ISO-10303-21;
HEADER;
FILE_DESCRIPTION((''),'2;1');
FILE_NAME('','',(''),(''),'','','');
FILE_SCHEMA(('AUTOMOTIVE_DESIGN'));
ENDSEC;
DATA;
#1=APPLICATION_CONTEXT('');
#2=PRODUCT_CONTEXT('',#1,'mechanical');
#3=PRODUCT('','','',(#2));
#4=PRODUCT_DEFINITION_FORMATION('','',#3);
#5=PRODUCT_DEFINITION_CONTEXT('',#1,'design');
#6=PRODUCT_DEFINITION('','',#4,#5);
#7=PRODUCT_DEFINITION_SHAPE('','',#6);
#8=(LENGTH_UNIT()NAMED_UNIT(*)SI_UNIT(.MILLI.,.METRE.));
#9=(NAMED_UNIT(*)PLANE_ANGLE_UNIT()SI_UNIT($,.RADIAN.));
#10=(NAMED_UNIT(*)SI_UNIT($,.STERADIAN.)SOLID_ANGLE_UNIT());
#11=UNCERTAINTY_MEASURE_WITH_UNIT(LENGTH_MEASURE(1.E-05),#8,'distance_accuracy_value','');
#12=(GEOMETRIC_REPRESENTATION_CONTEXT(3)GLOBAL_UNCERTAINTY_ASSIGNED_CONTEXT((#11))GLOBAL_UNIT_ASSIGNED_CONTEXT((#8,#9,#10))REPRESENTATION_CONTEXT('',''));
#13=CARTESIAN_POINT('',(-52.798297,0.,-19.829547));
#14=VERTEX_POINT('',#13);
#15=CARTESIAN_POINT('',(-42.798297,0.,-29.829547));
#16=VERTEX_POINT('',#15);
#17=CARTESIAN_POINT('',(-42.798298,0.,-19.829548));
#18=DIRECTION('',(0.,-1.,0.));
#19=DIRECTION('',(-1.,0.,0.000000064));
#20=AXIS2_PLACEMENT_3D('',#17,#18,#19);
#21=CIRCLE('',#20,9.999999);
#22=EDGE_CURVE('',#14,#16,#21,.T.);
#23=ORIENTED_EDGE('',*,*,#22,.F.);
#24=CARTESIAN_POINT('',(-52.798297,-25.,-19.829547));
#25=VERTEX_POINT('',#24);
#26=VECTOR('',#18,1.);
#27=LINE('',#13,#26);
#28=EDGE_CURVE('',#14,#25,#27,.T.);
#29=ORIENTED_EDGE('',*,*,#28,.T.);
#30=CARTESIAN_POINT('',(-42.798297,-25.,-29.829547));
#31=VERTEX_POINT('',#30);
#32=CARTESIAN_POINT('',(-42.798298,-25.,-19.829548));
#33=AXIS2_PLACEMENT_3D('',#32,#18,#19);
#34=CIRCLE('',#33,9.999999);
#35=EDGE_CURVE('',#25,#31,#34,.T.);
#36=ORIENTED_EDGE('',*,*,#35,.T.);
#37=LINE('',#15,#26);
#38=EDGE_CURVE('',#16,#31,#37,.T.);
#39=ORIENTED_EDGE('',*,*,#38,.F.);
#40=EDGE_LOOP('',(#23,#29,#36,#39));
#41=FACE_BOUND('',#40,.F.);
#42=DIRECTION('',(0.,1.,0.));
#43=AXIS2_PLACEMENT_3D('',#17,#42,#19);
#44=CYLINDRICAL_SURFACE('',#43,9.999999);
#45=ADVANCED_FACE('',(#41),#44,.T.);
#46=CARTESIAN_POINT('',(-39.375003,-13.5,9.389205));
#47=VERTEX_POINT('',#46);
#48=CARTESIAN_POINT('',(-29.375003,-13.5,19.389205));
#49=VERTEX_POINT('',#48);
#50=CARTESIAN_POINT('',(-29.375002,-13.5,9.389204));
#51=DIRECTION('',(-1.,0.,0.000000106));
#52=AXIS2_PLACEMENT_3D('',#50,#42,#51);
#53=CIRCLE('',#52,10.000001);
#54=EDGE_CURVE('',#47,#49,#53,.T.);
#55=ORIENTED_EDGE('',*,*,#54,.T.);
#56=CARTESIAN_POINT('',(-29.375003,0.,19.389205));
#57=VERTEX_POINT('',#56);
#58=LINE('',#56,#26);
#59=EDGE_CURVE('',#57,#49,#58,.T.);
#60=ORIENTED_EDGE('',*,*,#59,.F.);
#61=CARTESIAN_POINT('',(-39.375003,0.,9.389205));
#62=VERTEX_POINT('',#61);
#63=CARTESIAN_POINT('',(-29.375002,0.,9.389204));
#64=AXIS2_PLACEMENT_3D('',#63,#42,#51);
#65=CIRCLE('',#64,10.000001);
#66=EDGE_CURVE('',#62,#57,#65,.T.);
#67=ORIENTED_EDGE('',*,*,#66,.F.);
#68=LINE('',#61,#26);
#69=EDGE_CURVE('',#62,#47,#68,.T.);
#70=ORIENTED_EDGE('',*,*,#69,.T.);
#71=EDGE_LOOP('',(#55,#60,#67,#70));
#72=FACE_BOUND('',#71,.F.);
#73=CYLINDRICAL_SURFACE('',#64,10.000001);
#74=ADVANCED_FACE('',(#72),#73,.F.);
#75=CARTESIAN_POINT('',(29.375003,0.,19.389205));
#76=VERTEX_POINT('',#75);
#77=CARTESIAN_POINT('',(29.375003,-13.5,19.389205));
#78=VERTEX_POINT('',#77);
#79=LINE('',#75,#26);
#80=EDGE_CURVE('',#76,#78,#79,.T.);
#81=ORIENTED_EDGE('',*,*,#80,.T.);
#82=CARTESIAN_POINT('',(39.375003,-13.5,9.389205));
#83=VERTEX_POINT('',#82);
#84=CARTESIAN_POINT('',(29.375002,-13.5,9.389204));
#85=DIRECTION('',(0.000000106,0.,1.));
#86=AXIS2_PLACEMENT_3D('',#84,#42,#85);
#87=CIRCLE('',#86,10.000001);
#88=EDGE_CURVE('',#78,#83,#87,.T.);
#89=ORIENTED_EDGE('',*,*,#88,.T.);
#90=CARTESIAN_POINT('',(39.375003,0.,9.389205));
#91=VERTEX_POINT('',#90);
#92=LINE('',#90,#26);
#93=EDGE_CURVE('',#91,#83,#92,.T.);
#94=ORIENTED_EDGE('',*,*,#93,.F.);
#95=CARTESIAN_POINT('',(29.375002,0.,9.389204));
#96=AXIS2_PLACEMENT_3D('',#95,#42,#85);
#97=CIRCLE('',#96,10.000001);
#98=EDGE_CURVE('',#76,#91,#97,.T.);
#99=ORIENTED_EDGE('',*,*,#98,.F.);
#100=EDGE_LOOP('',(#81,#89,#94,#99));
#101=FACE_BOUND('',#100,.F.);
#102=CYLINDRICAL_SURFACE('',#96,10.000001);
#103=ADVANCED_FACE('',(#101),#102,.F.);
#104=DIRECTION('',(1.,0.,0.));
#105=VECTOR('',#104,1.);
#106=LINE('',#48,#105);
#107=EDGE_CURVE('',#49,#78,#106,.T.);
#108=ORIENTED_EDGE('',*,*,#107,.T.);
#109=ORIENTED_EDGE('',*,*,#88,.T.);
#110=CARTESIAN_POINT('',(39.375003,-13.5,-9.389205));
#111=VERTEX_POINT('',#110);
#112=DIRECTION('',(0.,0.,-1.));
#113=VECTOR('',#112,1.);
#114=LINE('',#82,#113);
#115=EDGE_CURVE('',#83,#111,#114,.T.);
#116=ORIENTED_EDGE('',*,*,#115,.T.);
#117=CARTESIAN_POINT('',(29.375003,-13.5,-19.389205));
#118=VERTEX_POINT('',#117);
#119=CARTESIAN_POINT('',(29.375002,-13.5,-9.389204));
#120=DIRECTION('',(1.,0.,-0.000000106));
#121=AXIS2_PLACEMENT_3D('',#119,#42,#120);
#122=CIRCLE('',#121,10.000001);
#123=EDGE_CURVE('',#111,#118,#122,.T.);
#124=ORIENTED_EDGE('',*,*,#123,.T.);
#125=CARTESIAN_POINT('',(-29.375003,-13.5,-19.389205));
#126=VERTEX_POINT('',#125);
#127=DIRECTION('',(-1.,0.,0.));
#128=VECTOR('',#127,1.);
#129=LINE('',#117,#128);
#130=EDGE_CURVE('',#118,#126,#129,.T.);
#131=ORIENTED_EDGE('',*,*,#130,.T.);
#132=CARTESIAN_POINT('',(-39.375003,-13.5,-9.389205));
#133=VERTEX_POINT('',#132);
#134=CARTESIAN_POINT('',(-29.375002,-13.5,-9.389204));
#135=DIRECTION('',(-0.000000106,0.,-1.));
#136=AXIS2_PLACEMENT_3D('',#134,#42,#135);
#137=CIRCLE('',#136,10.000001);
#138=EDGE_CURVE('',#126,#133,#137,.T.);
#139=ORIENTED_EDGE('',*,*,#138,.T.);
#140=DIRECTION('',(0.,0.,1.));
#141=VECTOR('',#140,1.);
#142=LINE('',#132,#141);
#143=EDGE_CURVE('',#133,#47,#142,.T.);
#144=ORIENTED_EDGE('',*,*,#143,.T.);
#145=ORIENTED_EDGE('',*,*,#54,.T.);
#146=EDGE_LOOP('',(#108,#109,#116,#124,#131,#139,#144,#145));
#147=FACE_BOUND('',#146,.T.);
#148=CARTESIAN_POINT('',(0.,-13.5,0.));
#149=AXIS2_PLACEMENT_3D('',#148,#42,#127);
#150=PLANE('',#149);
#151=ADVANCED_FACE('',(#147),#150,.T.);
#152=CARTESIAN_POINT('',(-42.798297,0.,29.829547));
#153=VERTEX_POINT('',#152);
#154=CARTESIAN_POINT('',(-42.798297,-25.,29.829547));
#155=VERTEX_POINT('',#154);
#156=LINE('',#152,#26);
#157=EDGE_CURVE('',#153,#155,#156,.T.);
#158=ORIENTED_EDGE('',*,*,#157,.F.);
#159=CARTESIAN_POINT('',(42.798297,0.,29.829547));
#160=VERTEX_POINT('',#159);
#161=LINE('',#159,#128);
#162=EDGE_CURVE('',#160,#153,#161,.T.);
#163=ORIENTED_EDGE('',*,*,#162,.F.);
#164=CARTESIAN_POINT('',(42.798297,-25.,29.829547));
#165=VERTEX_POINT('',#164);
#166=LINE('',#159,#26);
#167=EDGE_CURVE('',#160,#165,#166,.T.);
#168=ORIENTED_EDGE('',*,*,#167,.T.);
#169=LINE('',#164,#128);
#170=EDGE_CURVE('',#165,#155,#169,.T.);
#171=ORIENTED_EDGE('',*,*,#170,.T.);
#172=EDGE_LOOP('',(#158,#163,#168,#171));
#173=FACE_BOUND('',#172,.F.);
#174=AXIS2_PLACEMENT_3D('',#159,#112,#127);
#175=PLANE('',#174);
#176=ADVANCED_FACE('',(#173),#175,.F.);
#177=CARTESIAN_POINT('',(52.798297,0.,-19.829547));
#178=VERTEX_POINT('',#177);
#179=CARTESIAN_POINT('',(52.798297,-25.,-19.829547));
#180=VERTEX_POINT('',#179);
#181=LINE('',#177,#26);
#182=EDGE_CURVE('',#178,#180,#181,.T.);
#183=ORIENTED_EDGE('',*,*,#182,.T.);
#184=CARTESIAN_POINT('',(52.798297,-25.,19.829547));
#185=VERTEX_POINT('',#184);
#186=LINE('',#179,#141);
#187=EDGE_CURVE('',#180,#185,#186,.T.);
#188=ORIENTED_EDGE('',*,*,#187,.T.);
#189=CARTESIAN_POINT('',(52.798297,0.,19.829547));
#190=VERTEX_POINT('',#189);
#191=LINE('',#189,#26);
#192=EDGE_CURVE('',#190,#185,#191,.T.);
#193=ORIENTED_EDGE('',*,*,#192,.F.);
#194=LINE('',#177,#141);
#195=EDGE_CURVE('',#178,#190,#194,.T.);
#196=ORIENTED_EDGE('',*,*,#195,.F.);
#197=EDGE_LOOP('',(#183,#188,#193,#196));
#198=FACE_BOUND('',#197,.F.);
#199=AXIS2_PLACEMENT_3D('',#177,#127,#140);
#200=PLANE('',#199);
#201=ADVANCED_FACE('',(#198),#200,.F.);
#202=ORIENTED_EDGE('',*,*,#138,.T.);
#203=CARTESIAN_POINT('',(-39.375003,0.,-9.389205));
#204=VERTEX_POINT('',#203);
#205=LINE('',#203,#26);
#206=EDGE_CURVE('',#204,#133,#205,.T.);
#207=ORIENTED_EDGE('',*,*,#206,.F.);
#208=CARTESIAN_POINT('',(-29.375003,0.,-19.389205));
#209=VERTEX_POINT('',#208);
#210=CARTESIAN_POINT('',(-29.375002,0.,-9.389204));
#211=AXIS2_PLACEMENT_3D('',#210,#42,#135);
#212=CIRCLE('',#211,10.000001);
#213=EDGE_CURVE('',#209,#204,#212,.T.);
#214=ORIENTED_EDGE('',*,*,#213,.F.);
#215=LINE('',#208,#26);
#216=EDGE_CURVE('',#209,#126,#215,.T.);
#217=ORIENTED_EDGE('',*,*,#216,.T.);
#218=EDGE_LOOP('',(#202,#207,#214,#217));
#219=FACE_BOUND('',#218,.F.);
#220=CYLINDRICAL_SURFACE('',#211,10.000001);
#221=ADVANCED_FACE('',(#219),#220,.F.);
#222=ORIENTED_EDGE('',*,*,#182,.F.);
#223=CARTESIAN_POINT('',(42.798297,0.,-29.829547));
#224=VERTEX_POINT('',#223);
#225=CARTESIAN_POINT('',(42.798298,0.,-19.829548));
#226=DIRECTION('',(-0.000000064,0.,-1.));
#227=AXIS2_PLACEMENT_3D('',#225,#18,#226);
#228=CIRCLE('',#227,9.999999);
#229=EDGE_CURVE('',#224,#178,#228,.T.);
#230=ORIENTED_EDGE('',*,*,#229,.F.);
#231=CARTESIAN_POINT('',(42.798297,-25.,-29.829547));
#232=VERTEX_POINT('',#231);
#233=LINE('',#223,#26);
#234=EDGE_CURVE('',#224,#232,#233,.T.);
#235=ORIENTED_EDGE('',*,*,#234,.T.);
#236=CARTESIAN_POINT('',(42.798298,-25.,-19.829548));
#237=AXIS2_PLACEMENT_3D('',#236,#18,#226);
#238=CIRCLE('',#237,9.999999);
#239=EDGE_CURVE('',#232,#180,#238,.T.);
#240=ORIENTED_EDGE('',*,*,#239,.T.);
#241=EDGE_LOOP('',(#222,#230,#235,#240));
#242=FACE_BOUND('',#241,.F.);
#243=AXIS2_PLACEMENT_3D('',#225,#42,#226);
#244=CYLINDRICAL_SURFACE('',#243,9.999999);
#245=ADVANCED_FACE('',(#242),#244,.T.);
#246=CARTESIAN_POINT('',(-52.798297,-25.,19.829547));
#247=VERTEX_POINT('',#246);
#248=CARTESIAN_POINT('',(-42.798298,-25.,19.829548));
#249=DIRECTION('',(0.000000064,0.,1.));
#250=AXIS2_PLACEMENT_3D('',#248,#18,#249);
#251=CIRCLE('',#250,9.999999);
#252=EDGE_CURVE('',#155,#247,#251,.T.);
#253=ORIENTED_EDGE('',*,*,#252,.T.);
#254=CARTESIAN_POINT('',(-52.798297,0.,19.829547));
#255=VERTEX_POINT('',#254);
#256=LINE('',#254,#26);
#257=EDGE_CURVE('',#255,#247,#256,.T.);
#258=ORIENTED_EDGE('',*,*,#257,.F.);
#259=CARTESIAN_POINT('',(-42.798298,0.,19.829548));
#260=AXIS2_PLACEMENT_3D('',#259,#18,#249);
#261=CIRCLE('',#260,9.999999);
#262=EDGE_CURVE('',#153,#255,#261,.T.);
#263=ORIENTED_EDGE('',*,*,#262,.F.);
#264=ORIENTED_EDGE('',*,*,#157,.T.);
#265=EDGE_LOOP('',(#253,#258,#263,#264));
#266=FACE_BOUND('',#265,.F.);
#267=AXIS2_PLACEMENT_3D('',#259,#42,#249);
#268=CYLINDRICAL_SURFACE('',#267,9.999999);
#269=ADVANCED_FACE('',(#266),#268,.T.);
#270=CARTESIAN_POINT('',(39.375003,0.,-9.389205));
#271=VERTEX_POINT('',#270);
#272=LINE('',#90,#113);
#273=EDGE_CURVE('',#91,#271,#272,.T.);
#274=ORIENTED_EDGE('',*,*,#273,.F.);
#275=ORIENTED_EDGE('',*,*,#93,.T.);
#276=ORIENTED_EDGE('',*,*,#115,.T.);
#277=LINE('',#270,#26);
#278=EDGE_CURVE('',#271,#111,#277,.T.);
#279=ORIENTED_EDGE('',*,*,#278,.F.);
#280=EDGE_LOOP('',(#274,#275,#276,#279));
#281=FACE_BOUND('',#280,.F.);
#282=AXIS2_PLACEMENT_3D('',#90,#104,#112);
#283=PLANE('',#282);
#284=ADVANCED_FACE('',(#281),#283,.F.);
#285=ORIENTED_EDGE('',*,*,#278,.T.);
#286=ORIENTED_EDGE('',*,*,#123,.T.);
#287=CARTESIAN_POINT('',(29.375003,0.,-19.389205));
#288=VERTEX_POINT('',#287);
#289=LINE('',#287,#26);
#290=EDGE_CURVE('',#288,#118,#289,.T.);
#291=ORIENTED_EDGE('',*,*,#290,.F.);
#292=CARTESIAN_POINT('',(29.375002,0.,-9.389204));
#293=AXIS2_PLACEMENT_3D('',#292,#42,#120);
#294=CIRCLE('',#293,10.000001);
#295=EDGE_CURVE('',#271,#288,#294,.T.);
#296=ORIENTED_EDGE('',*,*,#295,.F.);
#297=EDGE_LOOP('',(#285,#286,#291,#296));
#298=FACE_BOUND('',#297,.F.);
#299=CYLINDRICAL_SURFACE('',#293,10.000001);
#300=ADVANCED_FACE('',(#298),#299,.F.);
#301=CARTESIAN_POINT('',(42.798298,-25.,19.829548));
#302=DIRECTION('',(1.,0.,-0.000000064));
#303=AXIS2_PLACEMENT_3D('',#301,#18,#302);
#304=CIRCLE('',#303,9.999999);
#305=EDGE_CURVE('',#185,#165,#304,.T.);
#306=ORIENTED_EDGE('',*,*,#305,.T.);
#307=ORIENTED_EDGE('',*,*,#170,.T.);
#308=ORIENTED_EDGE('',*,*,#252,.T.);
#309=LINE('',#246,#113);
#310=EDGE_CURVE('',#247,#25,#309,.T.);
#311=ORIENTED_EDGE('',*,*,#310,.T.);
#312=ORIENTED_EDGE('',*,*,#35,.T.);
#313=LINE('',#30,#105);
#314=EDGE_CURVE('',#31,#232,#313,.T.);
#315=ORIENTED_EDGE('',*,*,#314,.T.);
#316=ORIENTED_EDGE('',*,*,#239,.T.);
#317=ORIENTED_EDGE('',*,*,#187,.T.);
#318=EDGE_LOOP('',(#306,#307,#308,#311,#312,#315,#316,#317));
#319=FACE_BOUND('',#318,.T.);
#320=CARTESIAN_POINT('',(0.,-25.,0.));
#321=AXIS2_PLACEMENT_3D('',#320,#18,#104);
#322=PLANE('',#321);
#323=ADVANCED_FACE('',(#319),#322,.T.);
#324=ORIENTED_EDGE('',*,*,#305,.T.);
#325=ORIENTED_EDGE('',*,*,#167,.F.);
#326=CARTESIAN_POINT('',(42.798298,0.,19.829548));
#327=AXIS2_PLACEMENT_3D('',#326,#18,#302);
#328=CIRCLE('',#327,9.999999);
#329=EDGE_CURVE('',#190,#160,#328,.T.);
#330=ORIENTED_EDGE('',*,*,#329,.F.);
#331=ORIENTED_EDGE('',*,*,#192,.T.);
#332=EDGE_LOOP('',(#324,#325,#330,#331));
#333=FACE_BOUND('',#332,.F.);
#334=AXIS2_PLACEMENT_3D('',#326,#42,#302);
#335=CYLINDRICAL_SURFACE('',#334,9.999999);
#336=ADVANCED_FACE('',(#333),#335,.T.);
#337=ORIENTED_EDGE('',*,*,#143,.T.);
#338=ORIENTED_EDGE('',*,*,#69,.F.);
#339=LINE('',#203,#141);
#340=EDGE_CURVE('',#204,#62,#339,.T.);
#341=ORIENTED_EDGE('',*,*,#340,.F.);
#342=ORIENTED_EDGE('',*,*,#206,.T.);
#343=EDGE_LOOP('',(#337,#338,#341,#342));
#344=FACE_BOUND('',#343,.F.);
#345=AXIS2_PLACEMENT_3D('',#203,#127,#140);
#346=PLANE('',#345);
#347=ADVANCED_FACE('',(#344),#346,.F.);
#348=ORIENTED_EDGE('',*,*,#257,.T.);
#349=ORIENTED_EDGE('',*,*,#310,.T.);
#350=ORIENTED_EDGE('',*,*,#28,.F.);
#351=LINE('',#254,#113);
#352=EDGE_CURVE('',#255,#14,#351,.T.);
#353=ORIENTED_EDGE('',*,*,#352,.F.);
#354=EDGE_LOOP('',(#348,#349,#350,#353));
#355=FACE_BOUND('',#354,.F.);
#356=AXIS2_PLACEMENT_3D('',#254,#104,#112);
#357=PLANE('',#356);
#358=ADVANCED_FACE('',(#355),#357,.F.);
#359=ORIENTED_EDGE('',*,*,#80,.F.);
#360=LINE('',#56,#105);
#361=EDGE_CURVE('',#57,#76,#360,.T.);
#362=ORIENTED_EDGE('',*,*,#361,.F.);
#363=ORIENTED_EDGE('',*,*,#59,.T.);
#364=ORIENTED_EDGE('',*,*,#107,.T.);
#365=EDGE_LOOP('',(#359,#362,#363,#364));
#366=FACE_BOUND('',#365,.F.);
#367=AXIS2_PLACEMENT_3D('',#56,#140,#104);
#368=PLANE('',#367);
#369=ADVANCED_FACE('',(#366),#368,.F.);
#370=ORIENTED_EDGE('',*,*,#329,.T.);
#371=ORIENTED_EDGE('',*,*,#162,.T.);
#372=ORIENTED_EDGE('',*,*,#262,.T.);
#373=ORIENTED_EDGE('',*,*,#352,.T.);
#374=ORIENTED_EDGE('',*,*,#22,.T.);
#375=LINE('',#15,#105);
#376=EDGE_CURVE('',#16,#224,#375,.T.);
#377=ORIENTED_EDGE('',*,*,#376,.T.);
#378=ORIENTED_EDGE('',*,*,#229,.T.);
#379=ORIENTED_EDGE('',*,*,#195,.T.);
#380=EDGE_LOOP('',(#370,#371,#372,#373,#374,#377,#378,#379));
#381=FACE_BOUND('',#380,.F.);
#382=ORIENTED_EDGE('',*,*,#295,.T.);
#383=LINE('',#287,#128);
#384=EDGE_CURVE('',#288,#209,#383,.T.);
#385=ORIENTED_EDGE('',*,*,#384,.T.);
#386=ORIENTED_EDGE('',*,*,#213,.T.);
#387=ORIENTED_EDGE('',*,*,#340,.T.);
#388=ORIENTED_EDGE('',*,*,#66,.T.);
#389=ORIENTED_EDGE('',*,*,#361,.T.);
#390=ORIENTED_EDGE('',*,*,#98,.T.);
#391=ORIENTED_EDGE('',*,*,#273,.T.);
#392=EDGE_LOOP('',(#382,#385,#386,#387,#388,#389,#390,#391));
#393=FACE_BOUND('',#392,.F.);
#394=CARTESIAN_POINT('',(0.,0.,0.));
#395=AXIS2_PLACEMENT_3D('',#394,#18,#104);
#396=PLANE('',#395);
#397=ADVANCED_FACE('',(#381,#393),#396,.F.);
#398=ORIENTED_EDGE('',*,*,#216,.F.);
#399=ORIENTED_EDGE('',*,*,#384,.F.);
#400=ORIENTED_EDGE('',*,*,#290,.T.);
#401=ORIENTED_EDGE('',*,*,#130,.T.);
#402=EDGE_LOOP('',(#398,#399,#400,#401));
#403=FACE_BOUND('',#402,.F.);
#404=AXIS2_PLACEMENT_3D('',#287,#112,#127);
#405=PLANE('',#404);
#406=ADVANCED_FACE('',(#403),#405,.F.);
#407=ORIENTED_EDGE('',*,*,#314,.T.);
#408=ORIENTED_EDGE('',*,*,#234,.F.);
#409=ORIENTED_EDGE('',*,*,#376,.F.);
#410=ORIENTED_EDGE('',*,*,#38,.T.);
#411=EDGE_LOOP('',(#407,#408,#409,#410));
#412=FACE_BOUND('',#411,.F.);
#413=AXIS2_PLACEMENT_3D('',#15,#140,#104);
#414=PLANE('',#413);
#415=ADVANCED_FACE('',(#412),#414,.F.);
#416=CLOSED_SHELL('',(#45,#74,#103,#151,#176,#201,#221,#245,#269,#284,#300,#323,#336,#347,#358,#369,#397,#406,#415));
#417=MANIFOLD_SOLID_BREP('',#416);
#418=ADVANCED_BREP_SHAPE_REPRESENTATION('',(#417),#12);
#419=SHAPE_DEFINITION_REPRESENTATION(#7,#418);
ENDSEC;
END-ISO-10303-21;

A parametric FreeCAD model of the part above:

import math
import FreeCAD as App
import Part
import Sketcher

V = App.Vector

doc = App.newDocument("Part")
params = doc.addObject("Spreadsheet::Sheet", "Params")
for row, (alias, value) in enumerate([
    ("sketch1_radius", "9.999999 mm"),
    ("pad1_length", "25 mm"),
    ("sketch2_radius", "10.000001 mm"),
    ("pocket1_length", "13.5 mm"),
], start=1):
    params.set(f"A{row}", alias)
    params.set(f"B{row}", "=" + value)
    params.setAlias(f"B{row}", alias)

body = doc.addObject("PartDesign::Body", "Body")

# Sketch on XZ plane
sketch1 = body.newObject("Sketcher::SketchObject", "Sketch")
sketch1.AttachmentSupport = (doc.getObject("XZ_Plane"), [""])
sketch1.MapMode = "FlatFace"
sketch1.addGeometry([
    Part.ArcOfCircle(Part.Circle(V(-43, -20, 0), V(0, 0, 1), 10), math.radians(180), math.radians(270)),  # 0
    Part.LineSegment(V(-43, -30, 0), V(43, -30, 0)),  # 1
    Part.ArcOfCircle(Part.Circle(V(43, -20, 0), V(0, 0, 1), 10), math.radians(-90), math.radians(0)),  # 2
    Part.LineSegment(V(53, -20, 0), V(53, 20, 0)),  # 3
    Part.ArcOfCircle(Part.Circle(V(43, 20, 0), V(0, 0, 1), 10), math.radians(0), math.radians(90)),  # 4
    Part.LineSegment(V(43, 30, 0), V(-43, 30, 0)),  # 5
    Part.ArcOfCircle(Part.Circle(V(-43, 20, 0), V(0, 0, 1), 10), math.radians(90), math.radians(180)),  # 6
    Part.LineSegment(V(-53, 20, 0), V(-53, -20, 0)),  # 7
], False)
sketch1.addConstraint([
    Sketcher.Constraint("Tangent", 0, 2, 1, 1),
    Sketcher.Constraint("Tangent", 1, 2, 2, 1),
    Sketcher.Constraint("Tangent", 2, 2, 3, 1),
    Sketcher.Constraint("Tangent", 3, 2, 4, 1),
    Sketcher.Constraint("Tangent", 4, 2, 5, 1),
    Sketcher.Constraint("Tangent", 5, 2, 6, 1),
    Sketcher.Constraint("Tangent", 6, 2, 7, 1),
    Sketcher.Constraint("Tangent", 7, 2, 0, 1),
    Sketcher.Constraint("Horizontal", 1),
    Sketcher.Constraint("Vertical", 3),
    Sketcher.Constraint("Horizontal", 5),
    Sketcher.Constraint("Vertical", 7),
    Sketcher.Constraint("Equal", 0, 2),
    Sketcher.Constraint("Equal", 2, 4),
    Sketcher.Constraint("Equal", 4, 6),
    Sketcher.Constraint("Symmetric", 0, 3, 4, 3, -1, 1),
    Sketcher.Constraint("Radius", 0, 9.999999),
    Sketcher.Constraint("DistanceX", 1, 1, 1, 2, 85.596594),
    Sketcher.Constraint("DistanceY", 3, 1, 3, 2, 39.659094),
])
sketch1.setExpression("Constraints[16]", "Params.sketch1_radius")
pad1 = body.newObject("PartDesign::Pad", "Pad")
pad1.Profile = sketch1
pad1.setExpression("Length", "Params.pad1_length")

# Sketch on XZ plane
sketch2 = body.newObject("Sketcher::SketchObject", "Sketch001")
sketch2.AttachmentSupport = (doc.getObject("XZ_Plane"), [""])
sketch2.MapMode = "FlatFace"
sketch2.addGeometry([
    Part.ArcOfCircle(Part.Circle(V(29, -9, 0), V(0, 0, 1), 10), math.radians(-90), math.radians(0)),  # 0
    Part.LineSegment(V(29, -19, 0), V(-29, -19, 0)),  # 1
    Part.ArcOfCircle(Part.Circle(V(-29, -9, 0), V(0, 0, 1), 10), math.radians(-180), math.radians(-90)),  # 2
    Part.LineSegment(V(-39, -9, 0), V(-39, 9, 0)),  # 3
    Part.ArcOfCircle(Part.Circle(V(-29, 9, 0), V(0, 0, 1), 10), math.radians(90), math.radians(180)),  # 4
    Part.LineSegment(V(-29, 19, 0), V(29, 19, 0)),  # 5
    Part.ArcOfCircle(Part.Circle(V(29, 9, 0), V(0, 0, 1), 10), math.radians(0), math.radians(90)),  # 6
    Part.LineSegment(V(39, 9, 0), V(39, -9, 0)),  # 7
], False)
sketch2.addConstraint([
    Sketcher.Constraint("Tangent", 0, 1, 1, 1),
    Sketcher.Constraint("Tangent", 1, 2, 2, 2),
    Sketcher.Constraint("Tangent", 2, 1, 3, 1),
    Sketcher.Constraint("Tangent", 3, 2, 4, 2),
    Sketcher.Constraint("Tangent", 4, 1, 5, 1),
    Sketcher.Constraint("Tangent", 5, 2, 6, 2),
    Sketcher.Constraint("Tangent", 6, 1, 7, 1),
    Sketcher.Constraint("Tangent", 7, 2, 0, 2),
    Sketcher.Constraint("Horizontal", 1),
    Sketcher.Constraint("Vertical", 3),
    Sketcher.Constraint("Horizontal", 5),
    Sketcher.Constraint("Vertical", 7),
    Sketcher.Constraint("Equal", 0, 2),
    Sketcher.Constraint("Equal", 2, 4),
    Sketcher.Constraint("Equal", 4, 6),
    Sketcher.Constraint("Symmetric", 0, 3, 4, 3, -1, 1),
    Sketcher.Constraint("Radius", 0, 10.000001),
    Sketcher.Constraint("DistanceX", -1, 1, 0, 3, 29.375002),
    Sketcher.Constraint("DistanceY", 3, 1, 3, 2, 18.77841),
])
sketch2.setExpression("Constraints[16]", "Params.sketch2_radius")
pocket1 = body.newObject("PartDesign::Pocket", "Pocket")
pocket1.Profile = sketch2
pocket1.setExpression("Length", "Params.pocket1_length")
pocket1.Reversed = True

doc.recompute()
